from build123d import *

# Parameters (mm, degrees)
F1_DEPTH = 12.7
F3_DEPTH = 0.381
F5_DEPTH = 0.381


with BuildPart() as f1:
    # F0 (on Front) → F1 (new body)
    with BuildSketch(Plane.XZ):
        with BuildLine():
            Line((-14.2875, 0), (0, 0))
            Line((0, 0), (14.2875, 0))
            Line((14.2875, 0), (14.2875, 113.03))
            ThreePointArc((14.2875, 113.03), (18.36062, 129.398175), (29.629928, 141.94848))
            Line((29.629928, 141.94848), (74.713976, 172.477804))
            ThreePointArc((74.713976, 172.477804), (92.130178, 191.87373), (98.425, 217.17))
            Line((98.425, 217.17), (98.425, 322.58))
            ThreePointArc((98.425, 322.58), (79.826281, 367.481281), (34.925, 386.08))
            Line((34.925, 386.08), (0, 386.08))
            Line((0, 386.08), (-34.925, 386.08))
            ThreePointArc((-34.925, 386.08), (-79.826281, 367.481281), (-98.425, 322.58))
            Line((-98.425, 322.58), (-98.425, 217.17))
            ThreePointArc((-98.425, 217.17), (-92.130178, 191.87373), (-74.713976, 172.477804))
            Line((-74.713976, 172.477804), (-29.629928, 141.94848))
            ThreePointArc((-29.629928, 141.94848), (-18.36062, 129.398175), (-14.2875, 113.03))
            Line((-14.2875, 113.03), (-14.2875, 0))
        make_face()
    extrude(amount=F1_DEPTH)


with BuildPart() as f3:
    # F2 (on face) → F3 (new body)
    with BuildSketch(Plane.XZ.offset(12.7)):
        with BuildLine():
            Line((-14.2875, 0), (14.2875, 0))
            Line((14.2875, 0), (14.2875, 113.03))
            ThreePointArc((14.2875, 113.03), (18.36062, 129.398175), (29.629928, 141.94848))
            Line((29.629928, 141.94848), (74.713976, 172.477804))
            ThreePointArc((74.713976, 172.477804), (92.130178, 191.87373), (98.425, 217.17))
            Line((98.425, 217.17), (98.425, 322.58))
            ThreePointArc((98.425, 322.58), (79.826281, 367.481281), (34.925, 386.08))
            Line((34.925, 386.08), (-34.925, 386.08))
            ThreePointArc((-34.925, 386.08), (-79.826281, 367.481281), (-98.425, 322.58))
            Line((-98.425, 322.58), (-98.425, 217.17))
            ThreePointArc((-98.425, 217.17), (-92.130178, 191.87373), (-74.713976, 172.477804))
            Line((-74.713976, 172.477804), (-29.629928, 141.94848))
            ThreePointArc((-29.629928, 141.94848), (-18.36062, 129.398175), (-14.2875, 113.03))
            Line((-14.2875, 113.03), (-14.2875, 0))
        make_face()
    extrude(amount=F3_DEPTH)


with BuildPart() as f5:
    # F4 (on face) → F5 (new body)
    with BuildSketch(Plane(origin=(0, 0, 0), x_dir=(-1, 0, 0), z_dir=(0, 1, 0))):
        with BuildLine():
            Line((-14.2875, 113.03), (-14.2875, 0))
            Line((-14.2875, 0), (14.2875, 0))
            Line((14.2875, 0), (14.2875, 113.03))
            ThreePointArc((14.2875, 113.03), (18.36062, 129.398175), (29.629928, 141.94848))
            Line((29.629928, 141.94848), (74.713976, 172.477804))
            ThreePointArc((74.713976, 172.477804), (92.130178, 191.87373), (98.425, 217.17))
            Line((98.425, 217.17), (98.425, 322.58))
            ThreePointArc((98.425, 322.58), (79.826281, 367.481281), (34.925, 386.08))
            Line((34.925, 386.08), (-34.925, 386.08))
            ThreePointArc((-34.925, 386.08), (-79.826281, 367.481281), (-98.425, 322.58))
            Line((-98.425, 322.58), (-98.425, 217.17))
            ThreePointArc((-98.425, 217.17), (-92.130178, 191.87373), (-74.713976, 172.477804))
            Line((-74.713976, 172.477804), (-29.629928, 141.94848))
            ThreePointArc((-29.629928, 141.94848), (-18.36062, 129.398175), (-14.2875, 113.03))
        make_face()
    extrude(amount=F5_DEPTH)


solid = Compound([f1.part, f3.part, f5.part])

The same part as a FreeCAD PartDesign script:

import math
import FreeCAD as App
import Part
import Sketcher
from FreeCAD import Vector
Q = App.Units.Quantity

doc = App.newDocument("Part")
body = doc.addObject("PartDesign::Body", "Body")

# Sketch on XZ plane
sketch1 = doc.addObject("Sketcher::SketchObject", "Sketch")
body.addObject(sketch1)
sketch1.AttachmentSupport = (doc.XZ_Plane, [""])
sketch1.MapMode = "FlatFace"
sketch1.addGeometry(Part.LineSegment(Vector(-14, 0, 0), Vector(14, 0, 0)), False)
sketch1.addGeometry(Part.LineSegment(Vector(14, 0, 0), Vector(14, 113, 0)), False)
sketch1.addGeometry(Part.ArcOfCircle(Part.Circle(Vector(49, 113, 0), Vector(0, 0, 1), 35), math.radians(124), math.radians(180)), False)
sketch1.addGeometry(Part.LineSegment(Vector(30, 142, 0), Vector(75, 172, 0)), False)
sketch1.addGeometry(Part.ArcOfCircle(Part.Circle(Vector(44, 217, 0), Vector(0, 0, 1), 54), math.radians(-56), math.radians(0)), False)
sketch1.addGeometry(Part.LineSegment(Vector(98, 217, 0), Vector(98, 323, 0)), False)
sketch1.addGeometry(Part.ArcOfCircle(Part.Circle(Vector(35, 323, 0), Vector(0, 0, 1), 63), math.radians(0), math.radians(90)), False)
sketch1.addGeometry(Part.LineSegment(Vector(35, 386, 0), Vector(-35, 386, 0)), False)
sketch1.addGeometry(Part.ArcOfCircle(Part.Circle(Vector(-35, 323, 0), Vector(0, 0, 1), 63), math.radians(90), math.radians(180)), False)
sketch1.addGeometry(Part.LineSegment(Vector(-98, 323, 0), Vector(-98, 217, 0)), False)
sketch1.addGeometry(Part.ArcOfCircle(Part.Circle(Vector(-44, 217, 0), Vector(0, 0, 1), 54), math.radians(180), math.radians(236)), False)
sketch1.addGeometry(Part.LineSegment(Vector(-75, 172, 0), Vector(-30, 142, 0)), False)
sketch1.addGeometry(Part.ArcOfCircle(Part.Circle(Vector(-49, 113, 0), Vector(0, 0, 1), 35), math.radians(0), math.radians(56)), False)
sketch1.addGeometry(Part.LineSegment(Vector(-14, 113, 0), Vector(-14, 0, 0)), False)
sketch1.addConstraint(Sketcher.Constraint("Coincident", 0, 2, 1, 1))
sketch1.addConstraint(Sketcher.Constraint("Tangent", 1, 2, 2, 2))
sketch1.addConstraint(Sketcher.Constraint("Tangent", 2, 1, 3, 1))
sketch1.addConstraint(Sketcher.Constraint("Tangent", 3, 2, 4, 1))
sketch1.addConstraint(Sketcher.Constraint("Tangent", 4, 2, 5, 1))
sketch1.addConstraint(Sketcher.Constraint("Tangent", 5, 2, 6, 1))
sketch1.addConstraint(Sketcher.Constraint("Tangent", 6, 2, 7, 1))
sketch1.addConstraint(Sketcher.Constraint("Tangent", 7, 2, 8, 1))
sketch1.addConstraint(Sketcher.Constraint("Tangent", 8, 2, 9, 1))
sketch1.addConstraint(Sketcher.Constraint("Tangent", 9, 2, 10, 1))
sketch1.addConstraint(Sketcher.Constraint("Tangent", 10, 2, 11, 1))
sketch1.addConstraint(Sketcher.Constraint("Tangent", 11, 2, 12, 2))
sketch1.addConstraint(Sketcher.Constraint("Tangent", 12, 1, 13, 1))
sketch1.addConstraint(Sketcher.Constraint("Coincident", 13, 2, 0, 1))
sketch1.addConstraint(Sketcher.Constraint("Horizontal", 0))
sketch1.addConstraint(Sketcher.Constraint("Vertical", 1))
sketch1.addConstraint(Sketcher.Constraint("Vertical", 5))
sketch1.addConstraint(Sketcher.Constraint("Horizontal", 7))
sketch1.addConstraint(Sketcher.Constraint("Vertical", 9))
sketch1.addConstraint(Sketcher.Constraint("Vertical", 13))
sketch1.addConstraint(Sketcher.Constraint("Equal", 6, 8))
sketch1.addConstraint(Sketcher.Constraint("Equal", 4, 10))
sketch1.addConstraint(Sketcher.Constraint("Equal", 2, 12))
sketch1.addConstraint(Sketcher.Constraint("Symmetric", 0, 2, 13, 2, -1, 1))
sketch1.addConstraint(Sketcher.Constraint("Symmetric", 4, 3, 10, 3, -2))
sketch1.addConstraint(Sketcher.Constraint("Horizontal", 2, 3, 12, 3))
sketch1.addConstraint(Sketcher.Constraint("Radius", 6, Q("2.4999999 in")))
sketch1.addConstraint(Sketcher.Constraint("Radius", 2, Q("1.3749999 in")))
sketch1.addConstraint(Sketcher.Constraint("Radius", 4, Q("2.1249999 in")))
sketch1.addConstraint(Sketcher.Constraint("DistanceX", 7, 2, 7, 1, Q("2.75 in")))
sketch1.addConstraint(Sketcher.Constraint("DistanceY", 1, 1, 1, 2, Q("4.45 in")))
sketch1.addConstraint(Sketcher.Constraint("DistanceY", 5, 1, 5, 2, Q("4.15 in")))
sketch1.addConstraint(Sketcher.Constraint("DistanceY", -1, 1, 6, 3, Q("12.7000001 in")))
sketch1.addConstraint(Sketcher.Constraint("DistanceX", 12, 3, 0, 2, Q("2.4999999 in")))
pad1 = doc.addObject("PartDesign::Pad", "Pad")
body.addObject(pad1)
pad1.Profile = sketch1
pad1.Length = Q("0.5 in")
body2 = doc.addObject("PartDesign::Body", "Body001")

# Sketch on XZ plane
sketch2 = doc.addObject("Sketcher::SketchObject", "Sketch001")
body2.addObject(sketch2)
sketch2.AttachmentSupport = (doc.getObject("XZ_Plane001"), [""])
sketch2.MapMode = "FlatFace"
sketch2.AttachmentOffset = App.Placement(Vector(0, 0, 0.5 * 25.4), App.Rotation())
sketch2.addGeometry(Part.LineSegment(Vector(-14, 0, 0), Vector(14, 0, 0)), False)
sketch2.addGeometry(Part.LineSegment(Vector(14, 0, 0), Vector(14, 113, 0)), False)
sketch2.addGeometry(Part.ArcOfCircle(Part.Circle(Vector(49, 113, 0), Vector(0, 0, 1), 35), math.radians(124), math.radians(180)), False)
sketch2.addGeometry(Part.LineSegment(Vector(30, 142, 0), Vector(75, 172, 0)), False)
sketch2.addGeometry(Part.ArcOfCircle(Part.Circle(Vector(44, 217, 0), Vector(0, 0, 1), 54), math.radians(-56), math.radians(0)), False)
sketch2.addGeometry(Part.LineSegment(Vector(98, 217, 0), Vector(98, 323, 0)), False)
sketch2.addGeometry(Part.ArcOfCircle(Part.Circle(Vector(35, 323, 0), Vector(0, 0, 1), 63), math.radians(0), math.radians(90)), False)
sketch2.addGeometry(Part.LineSegment(Vector(35, 386, 0), Vector(-35, 386, 0)), False)
sketch2.addGeometry(Part.ArcOfCircle(Part.Circle(Vector(-35, 323, 0), Vector(0, 0, 1), 63), math.radians(90), math.radians(180)), False)
sketch2.addGeometry(Part.LineSegment(Vector(-98, 323, 0), Vector(-98, 217, 0)), False)
sketch2.addGeometry(Part.ArcOfCircle(Part.Circle(Vector(-44, 217, 0), Vector(0, 0, 1), 54), math.radians(180), math.radians(236)), False)
sketch2.addGeometry(Part.LineSegment(Vector(-75, 172, 0), Vector(-30, 142, 0)), False)
sketch2.addGeometry(Part.ArcOfCircle(Part.Circle(Vector(-49, 113, 0), Vector(0, 0, 1), 35), math.radians(0), math.radians(56)), False)
sketch2.addGeometry(Part.LineSegment(Vector(-14, 113, 0), Vector(-14, 0, 0)), False)
sketch2.addConstraint(Sketcher.Constraint("Coincident", 0, 2, 1, 1))
sketch2.addConstraint(Sketcher.Constraint("Tangent", 1, 2, 2, 2))
sketch2.addConstraint(Sketcher.Constraint("Tangent", 2, 1, 3, 1))
sketch2.addConstraint(Sketcher.Constraint("Tangent", 3, 2, 4, 1))
sketch2.addConstraint(Sketcher.Constraint("Tangent", 4, 2, 5, 1))
sketch2.addConstraint(Sketcher.Constraint("Tangent", 5, 2, 6, 1))
sketch2.addConstraint(Sketcher.Constraint("Tangent", 6, 2, 7, 1))
sketch2.addConstraint(Sketcher.Constraint("Tangent", 7, 2, 8, 1))
sketch2.addConstraint(Sketcher.Constraint("Tangent", 8, 2, 9, 1))
sketch2.addConstraint(Sketcher.Constraint("Tangent", 9, 2, 10, 1))
sketch2.addConstraint(Sketcher.Constraint("Tangent", 10, 2, 11, 1))
sketch2.addConstraint(Sketcher.Constraint("Tangent", 11, 2, 12, 2))
sketch2.addConstraint(Sketcher.Constraint("Tangent", 12, 1, 13, 1))
sketch2.addConstraint(Sketcher.Constraint("Coincident", 13, 2, 0, 1))
sketch2.addConstraint(Sketcher.Constraint("Horizontal", 0))
sketch2.addConstraint(Sketcher.Constraint("Vertical", 1))
sketch2.addConstraint(Sketcher.Constraint("Vertical", 5))
sketch2.addConstraint(Sketcher.Constraint("Horizontal", 7))
sketch2.addConstraint(Sketcher.Constraint("Vertical", 9))
sketch2.addConstraint(Sketcher.Constraint("Vertical", 13))
sketch2.addConstraint(Sketcher.Constraint("Equal", 6, 8))
sketch2.addConstraint(Sketcher.Constraint("Equal", 4, 10))
sketch2.addConstraint(Sketcher.Constraint("Equal", 2, 12))
sketch2.addConstraint(Sketcher.Constraint("Symmetric", 0, 2, 13, 2, -1, 1))
sketch2.addConstraint(Sketcher.Constraint("Symmetric", 4, 3, 10, 3, -2))
sketch2.addConstraint(Sketcher.Constraint("Horizontal", 2, 3, 12, 3))
sketch2.addConstraint(Sketcher.Constraint("Radius", 6, Q("2.4999999 in")))
sketch2.addConstraint(Sketcher.Constraint("Radius", 2, Q("1.3749999 in")))
sketch2.addConstraint(Sketcher.Constraint("Radius", 4, Q("2.1249999 in")))
sketch2.addConstraint(Sketcher.Constraint("DistanceX", 7, 2, 7, 1, Q("2.75 in")))
sketch2.addConstraint(Sketcher.Constraint("DistanceY", 1, 1, 1, 2, Q("4.45 in")))
sketch2.addConstraint(Sketcher.Constraint("DistanceY", 5, 1, 5, 2, Q("4.15 in")))
sketch2.addConstraint(Sketcher.Constraint("DistanceY", -1, 1, 6, 3, Q("12.7000001 in")))
sketch2.addConstraint(Sketcher.Constraint("DistanceX", 12, 3, 0, 2, Q("2.4999999 in")))
pad2 = doc.addObject("PartDesign::Pad", "Pad001")
body2.addObject(pad2)
pad2.Profile = sketch2
pad2.Length = Q("0.015 in")
body3 = doc.addObject("PartDesign::Body", "Body002")

# Sketch on XZ plane
sketch3 = doc.addObject("Sketcher::SketchObject", "Sketch002")
body3.addObject(sketch3)
sketch3.AttachmentSupport = (doc.getObject("XZ_Plane002"), [""])
sketch3.MapMode = "FlatFace"
sketch3.addGeometry(Part.LineSegment(Vector(14, 113, 0), Vector(14, 0, 0)), False)
sketch3.addGeometry(Part.LineSegment(Vector(14, 0, 0), Vector(-14, 0, 0)), False)
sketch3.addGeometry(Part.LineSegment(Vector(-14, 0, 0), Vector(-14, 113, 0)), False)
sketch3.addGeometry(Part.ArcOfCircle(Part.Circle(Vector(-49, 113, 0), Vector(0, 0, 1), 35), math.radians(0), math.radians(56)), False)
sketch3.addGeometry(Part.LineSegment(Vector(-30, 142, 0), Vector(-75, 172, 0)), False)
sketch3.addGeometry(Part.ArcOfCircle(Part.Circle(Vector(-44, 217, 0), Vector(0, 0, 1), 54), math.radians(180), math.radians(236)), False)
sketch3.addGeometry(Part.LineSegment(Vector(-98, 217, 0), Vector(-98, 323, 0)), False)
sketch3.addGeometry(Part.ArcOfCircle(Part.Circle(Vector(-35, 323, 0), Vector(0, 0, 1), 63), math.radians(90), math.radians(180)), False)
sketch3.addGeometry(Part.LineSegment(Vector(-35, 386, 0), Vector(35, 386, 0)), False)
sketch3.addGeometry(Part.ArcOfCircle(Part.Circle(Vector(35, 323, 0), Vector(0, 0, 1), 63), math.radians(0), math.radians(90)), False)
sketch3.addGeometry(Part.LineSegment(Vector(98, 323, 0), Vector(98, 217, 0)), False)
sketch3.addGeometry(Part.ArcOfCircle(Part.Circle(Vector(44, 217, 0), Vector(0, 0, 1), 54), math.radians(-56), math.radians(0)), False)
sketch3.addGeometry(Part.LineSegment(Vector(75, 172, 0), Vector(30, 142, 0)), False)
sketch3.addGeometry(Part.ArcOfCircle(Part.Circle(Vector(49, 113, 0), Vector(0, 0, 1), 35), math.radians(124), math.radians(180)), False)
sketch3.addConstraint(Sketcher.Constraint("Coincident", 0, 2, 1, 1))
sketch3.addConstraint(Sketcher.Constraint("Coincident", 1, 2, 2, 1))
sketch3.addConstraint(Sketcher.Constraint("Tangent", 2, 2, 3, 1))
sketch3.addConstraint(Sketcher.Constraint("Tangent", 3, 2, 4, 1))
sketch3.addConstraint(Sketcher.Constraint("Tangent", 4, 2, 5, 2))
sketch3.addConstraint(Sketcher.Constraint("Tangent", 5, 1, 6, 1))
sketch3.addConstraint(Sketcher.Constraint("Tangent", 6, 2, 7, 2))
sketch3.addConstraint(Sketcher.Constraint("Tangent", 7, 1, 8, 1))
sketch3.addConstraint(Sketcher.Constraint("Tangent", 8, 2, 9, 2))
sketch3.addConstraint(Sketcher.Constraint("Tangent", 9, 1, 10, 1))
sketch3.addConstraint(Sketcher.Constraint("Tangent", 10, 2, 11, 2))
sketch3.addConstraint(Sketcher.Constraint("Tangent", 11, 1, 12, 1))
sketch3.addConstraint(Sketcher.Constraint("Tangent", 12, 2, 13, 1))
sketch3.addConstraint(Sketcher.Constraint("Tangent", 13, 2, 0, 1))
sketch3.addConstraint(Sketcher.Constraint("Vertical", 0))
sketch3.addConstraint(Sketcher.Constraint("Horizontal", 1))
sketch3.addConstraint(Sketcher.Constraint("Vertical", 2))
sketch3.addConstraint(Sketcher.Constraint("Vertical", 6))
sketch3.addConstraint(Sketcher.Constraint("Horizontal", 8))
sketch3.addConstraint(Sketcher.Constraint("Vertical", 10))
sketch3.addConstraint(Sketcher.Constraint("Equal", 7, 9))
sketch3.addConstraint(Sketcher.Constraint("Equal", 5, 11))
sketch3.addConstraint(Sketcher.Constraint("Equal", 3, 13))
sketch3.addConstraint(Sketcher.Constraint("Symmetric", 0, 2, 1, 2, -1, 1))
sketch3.addConstraint(Sketcher.Constraint("Symmetric", 5, 3, 11, 3, -2))
sketch3.addConstraint(Sketcher.Constraint("Horizontal", 3, 3, 13, 3))
sketch3.addConstraint(Sketcher.Constraint("Radius", 7, Q("2.4999999 in")))
sketch3.addConstraint(Sketcher.Constraint("Radius", 3, Q("1.3749999 in")))
sketch3.addConstraint(Sketcher.Constraint("Radius", 5, Q("2.1249999 in")))
sketch3.addConstraint(Sketcher.Constraint("DistanceX", 8, 1, 8, 2, Q("2.75 in")))
sketch3.addConstraint(Sketcher.Constraint("DistanceY", 0, 2, 0, 1, Q("4.45 in")))
sketch3.addConstraint(Sketcher.Constraint("DistanceY", 6, 1, 6, 2, Q("4.15 in")))
sketch3.addConstraint(Sketcher.Constraint("DistanceY", -1, 1, 7, 3, Q("12.7000001 in")))
sketch3.addConstraint(Sketcher.Constraint("DistanceX", 3, 3, 0, 2, Q("2.4999999 in")))
pad3 = doc.addObject("PartDesign::Pad", "Pad002")
body3.addObject(pad3)
pad3.Profile = sketch3
pad3.Length = Q("0.015 in")
pad3.Reversed = True

doc.recompute()
